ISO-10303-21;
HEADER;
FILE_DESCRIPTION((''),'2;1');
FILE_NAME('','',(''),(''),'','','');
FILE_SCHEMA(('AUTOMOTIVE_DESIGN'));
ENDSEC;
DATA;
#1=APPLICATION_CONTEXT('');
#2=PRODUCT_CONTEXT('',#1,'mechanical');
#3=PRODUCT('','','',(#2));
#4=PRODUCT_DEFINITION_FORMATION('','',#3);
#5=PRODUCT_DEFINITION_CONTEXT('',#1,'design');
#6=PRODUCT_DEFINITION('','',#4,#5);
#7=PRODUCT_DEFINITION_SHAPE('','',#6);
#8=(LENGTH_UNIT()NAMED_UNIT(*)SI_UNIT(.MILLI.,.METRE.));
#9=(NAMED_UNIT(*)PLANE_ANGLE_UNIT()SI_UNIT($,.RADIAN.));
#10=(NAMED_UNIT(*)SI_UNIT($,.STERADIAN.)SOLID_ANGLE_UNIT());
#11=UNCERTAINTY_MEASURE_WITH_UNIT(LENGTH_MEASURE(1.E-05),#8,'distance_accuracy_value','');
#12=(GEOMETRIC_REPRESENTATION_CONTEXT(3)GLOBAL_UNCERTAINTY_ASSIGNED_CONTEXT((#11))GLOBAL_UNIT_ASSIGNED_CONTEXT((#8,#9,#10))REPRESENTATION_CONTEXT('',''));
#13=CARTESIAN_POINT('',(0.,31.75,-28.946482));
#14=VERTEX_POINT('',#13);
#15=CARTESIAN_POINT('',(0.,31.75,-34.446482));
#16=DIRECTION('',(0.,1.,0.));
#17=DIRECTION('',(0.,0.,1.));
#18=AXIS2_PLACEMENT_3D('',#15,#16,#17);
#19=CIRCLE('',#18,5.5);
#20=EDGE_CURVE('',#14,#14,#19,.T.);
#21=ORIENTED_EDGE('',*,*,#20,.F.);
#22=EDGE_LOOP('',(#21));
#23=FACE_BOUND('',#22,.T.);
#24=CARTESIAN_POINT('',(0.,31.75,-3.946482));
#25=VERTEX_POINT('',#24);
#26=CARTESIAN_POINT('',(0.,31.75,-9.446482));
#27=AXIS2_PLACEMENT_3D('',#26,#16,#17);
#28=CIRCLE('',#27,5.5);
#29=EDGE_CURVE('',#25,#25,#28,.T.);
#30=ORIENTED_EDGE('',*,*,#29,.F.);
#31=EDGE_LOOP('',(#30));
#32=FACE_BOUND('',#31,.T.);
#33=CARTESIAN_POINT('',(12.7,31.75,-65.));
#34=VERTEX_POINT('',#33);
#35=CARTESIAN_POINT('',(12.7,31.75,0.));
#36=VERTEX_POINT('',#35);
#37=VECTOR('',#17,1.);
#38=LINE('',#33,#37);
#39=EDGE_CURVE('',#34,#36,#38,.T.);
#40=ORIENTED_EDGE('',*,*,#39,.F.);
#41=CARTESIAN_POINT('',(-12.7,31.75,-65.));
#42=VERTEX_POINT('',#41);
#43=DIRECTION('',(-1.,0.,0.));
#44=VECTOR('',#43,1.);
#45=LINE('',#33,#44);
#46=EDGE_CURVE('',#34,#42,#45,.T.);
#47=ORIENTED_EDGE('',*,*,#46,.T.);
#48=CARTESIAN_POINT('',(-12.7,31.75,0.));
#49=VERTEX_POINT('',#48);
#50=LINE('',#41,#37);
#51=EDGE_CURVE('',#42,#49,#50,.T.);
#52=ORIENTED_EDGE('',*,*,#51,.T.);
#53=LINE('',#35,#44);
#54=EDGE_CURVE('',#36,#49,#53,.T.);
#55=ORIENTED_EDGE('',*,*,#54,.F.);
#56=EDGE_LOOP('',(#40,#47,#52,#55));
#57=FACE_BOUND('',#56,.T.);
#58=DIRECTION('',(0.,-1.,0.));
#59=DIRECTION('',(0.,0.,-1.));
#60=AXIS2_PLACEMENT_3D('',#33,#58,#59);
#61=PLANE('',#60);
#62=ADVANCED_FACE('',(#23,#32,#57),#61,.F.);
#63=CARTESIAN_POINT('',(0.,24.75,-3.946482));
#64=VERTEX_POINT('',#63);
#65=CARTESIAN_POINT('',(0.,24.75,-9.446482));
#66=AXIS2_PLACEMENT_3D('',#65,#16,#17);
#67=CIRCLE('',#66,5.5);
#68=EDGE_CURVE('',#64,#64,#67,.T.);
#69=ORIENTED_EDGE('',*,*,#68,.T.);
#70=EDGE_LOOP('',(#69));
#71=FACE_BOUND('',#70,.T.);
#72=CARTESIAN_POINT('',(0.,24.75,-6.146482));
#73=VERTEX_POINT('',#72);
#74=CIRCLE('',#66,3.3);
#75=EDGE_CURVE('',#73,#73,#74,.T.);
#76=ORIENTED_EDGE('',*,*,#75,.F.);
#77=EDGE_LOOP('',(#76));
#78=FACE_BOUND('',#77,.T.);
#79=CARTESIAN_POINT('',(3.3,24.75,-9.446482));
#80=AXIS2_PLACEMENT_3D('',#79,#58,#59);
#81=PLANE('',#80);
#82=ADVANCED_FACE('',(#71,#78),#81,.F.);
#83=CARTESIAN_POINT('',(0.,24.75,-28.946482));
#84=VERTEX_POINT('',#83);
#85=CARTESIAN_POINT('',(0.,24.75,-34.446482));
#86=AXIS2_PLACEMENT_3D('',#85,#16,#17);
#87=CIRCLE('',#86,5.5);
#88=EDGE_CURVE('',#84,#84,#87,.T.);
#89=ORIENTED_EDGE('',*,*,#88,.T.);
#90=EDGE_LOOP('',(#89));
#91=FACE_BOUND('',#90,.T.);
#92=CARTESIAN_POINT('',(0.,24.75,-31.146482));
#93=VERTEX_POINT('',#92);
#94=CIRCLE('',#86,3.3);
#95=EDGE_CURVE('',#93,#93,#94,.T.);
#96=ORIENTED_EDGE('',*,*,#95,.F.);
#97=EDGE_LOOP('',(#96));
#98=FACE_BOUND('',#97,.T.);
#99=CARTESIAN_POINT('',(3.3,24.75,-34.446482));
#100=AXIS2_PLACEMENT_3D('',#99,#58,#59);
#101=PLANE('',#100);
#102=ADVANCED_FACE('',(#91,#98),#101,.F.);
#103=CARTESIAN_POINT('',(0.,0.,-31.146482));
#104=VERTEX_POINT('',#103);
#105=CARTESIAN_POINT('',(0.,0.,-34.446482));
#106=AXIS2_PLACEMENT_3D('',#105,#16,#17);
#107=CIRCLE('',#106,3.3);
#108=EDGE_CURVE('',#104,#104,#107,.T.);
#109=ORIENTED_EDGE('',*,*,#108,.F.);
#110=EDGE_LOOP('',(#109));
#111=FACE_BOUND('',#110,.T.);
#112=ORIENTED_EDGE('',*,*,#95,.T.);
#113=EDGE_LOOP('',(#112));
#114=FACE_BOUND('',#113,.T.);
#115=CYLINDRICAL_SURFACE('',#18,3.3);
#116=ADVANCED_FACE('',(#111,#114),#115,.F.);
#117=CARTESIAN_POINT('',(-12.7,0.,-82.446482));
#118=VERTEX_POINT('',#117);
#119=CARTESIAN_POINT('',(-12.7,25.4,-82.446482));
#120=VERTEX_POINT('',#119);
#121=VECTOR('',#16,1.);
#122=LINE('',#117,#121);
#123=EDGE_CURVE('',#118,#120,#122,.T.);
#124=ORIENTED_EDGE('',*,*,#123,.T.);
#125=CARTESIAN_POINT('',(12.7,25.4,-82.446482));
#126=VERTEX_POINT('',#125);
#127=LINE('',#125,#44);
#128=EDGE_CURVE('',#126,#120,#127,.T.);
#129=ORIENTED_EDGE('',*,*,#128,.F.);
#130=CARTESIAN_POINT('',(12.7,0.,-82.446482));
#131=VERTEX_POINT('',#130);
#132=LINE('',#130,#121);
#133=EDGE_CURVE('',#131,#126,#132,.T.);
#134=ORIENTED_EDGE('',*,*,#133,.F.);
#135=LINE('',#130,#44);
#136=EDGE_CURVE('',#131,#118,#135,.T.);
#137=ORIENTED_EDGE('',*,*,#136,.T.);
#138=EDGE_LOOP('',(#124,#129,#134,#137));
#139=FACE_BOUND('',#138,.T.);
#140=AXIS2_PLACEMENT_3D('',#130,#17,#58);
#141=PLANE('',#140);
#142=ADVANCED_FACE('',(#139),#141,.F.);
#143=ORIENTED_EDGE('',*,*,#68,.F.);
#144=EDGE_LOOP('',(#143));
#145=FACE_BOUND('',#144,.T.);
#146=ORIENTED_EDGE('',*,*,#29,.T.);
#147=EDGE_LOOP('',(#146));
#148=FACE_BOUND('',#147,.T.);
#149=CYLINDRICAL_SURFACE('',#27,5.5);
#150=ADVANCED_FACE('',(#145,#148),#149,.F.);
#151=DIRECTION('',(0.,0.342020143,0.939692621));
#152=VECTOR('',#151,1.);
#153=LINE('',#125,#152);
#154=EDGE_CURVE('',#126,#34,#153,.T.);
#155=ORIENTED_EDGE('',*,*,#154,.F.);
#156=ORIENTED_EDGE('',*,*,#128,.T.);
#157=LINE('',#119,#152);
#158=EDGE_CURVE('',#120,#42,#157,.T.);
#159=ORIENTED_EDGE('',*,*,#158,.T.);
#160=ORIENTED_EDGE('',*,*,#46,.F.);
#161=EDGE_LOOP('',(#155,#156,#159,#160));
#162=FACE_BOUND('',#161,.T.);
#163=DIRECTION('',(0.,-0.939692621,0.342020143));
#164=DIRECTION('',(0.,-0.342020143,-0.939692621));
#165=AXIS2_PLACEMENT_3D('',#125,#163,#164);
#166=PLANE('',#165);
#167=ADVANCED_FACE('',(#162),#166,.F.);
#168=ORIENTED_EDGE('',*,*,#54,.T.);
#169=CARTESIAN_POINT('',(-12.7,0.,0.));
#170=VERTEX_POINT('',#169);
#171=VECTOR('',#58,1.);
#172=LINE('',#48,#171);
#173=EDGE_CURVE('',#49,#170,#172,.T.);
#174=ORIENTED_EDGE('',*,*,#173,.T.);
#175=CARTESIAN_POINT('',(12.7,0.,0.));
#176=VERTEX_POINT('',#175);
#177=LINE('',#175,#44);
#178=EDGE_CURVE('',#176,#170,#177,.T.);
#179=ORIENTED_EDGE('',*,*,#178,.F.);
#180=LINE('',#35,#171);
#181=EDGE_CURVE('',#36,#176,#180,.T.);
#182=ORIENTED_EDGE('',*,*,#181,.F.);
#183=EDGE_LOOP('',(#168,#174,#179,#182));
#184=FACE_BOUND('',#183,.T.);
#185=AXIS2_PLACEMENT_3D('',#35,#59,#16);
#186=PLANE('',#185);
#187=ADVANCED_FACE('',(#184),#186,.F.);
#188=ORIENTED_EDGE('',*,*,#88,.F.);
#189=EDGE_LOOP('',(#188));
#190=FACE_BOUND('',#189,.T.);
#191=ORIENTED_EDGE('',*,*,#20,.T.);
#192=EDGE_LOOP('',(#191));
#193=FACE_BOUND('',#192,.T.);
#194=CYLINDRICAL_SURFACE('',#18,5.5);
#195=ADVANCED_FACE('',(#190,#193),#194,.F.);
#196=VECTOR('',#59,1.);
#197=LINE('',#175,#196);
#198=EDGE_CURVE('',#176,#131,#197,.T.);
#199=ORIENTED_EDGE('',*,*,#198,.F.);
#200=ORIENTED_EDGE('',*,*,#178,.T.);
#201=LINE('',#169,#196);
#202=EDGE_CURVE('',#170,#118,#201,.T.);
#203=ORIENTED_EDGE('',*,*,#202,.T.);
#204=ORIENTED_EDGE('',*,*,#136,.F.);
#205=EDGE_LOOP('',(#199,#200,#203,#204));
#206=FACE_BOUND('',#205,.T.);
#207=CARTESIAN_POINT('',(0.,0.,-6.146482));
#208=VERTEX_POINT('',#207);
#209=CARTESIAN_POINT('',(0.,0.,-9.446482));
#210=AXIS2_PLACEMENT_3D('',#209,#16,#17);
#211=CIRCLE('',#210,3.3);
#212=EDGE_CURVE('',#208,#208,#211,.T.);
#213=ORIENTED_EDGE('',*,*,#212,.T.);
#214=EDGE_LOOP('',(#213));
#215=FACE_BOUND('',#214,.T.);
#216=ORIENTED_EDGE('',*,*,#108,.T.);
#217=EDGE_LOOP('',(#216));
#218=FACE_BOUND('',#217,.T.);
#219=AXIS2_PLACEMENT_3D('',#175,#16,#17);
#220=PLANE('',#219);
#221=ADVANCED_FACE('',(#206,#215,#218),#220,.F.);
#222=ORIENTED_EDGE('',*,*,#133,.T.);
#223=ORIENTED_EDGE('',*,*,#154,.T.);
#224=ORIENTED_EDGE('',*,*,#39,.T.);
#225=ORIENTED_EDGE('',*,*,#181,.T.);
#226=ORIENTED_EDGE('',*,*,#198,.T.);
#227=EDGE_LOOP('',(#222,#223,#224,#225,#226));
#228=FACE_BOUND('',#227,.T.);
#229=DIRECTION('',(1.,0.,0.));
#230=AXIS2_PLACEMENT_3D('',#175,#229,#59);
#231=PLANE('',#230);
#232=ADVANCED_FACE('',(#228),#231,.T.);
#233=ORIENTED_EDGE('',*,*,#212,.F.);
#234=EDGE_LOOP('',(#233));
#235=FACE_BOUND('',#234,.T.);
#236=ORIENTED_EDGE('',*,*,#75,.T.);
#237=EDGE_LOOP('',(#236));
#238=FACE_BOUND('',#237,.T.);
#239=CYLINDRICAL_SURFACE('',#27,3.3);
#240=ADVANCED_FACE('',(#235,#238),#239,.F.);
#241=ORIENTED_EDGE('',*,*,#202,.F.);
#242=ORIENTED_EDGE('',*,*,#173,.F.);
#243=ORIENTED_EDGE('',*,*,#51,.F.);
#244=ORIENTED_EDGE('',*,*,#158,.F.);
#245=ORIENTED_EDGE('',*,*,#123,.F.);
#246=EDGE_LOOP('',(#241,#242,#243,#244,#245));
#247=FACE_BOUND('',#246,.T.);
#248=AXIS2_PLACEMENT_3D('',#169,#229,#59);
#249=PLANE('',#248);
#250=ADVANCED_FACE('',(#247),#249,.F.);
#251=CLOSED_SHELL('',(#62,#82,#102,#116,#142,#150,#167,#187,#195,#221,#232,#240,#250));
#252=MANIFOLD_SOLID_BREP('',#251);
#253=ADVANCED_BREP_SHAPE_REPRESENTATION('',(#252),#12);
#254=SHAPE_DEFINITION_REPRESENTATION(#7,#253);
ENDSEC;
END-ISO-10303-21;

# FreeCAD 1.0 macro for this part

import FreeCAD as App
import Part
import Sketcher

V = App.Vector
Q = App.Units.Quantity


def add_polygon(sketch, points):
    """Adds a closed chain of lines whose ends are joined by coincident constraints."""
    first, n = sketch.GeometryCount, len(points)
    for a, b in zip(points, points[1:] + points[:1]):
        sketch.addGeometry(Part.LineSegment(App.Vector(*a, 0), App.Vector(*b, 0)), False)
    for i in range(n):
        sketch.addConstraint(Sketcher.Constraint("Coincident", first + i, 2, first + (i + 1) % n, 1))

doc = App.newDocument("Part")
body = doc.addObject("PartDesign::Body", "Body")

# Sketch on YZ plane
sketch1 = body.newObject("Sketcher::SketchObject", "Sketch")
sketch1.AttachmentSupport = (doc.getObject("YZ_Plane"), [""])
sketch1.MapMode = "FlatFace"
add_polygon(sketch1, [(0, 0), (0, -82), (25, -82), (32, -65), (32, 0)])  # lines 0-4
sketch1.addConstraint([
    Sketcher.Constraint("Vertical", 0),
    Sketcher.Constraint("Horizontal", 1),
    Sketcher.Constraint("Vertical", 3),
    Sketcher.Constraint("Horizontal", 4),
    Sketcher.Constraint("Coincident", 4, 2, -1, 1),
    Sketcher.Constraint("DistanceX", 1, 1, 1, 2, Q("1 in")),
    Sketcher.Constraint("Angle", 2, Q("70 deg")),
    Sketcher.Constraint("DistanceX", 4, 2, 4, 1, Q("1.25 in")),
    Sketcher.Constraint("DistanceY", 3, 1, 3, 2, Q("65 mm")),
])
pad1 = body.newObject("PartDesign::Pad", "Pad")
pad1.Profile = sketch1
pad1.Length = Q("1 in")
pad1.Midplane = True

# Sketch on XZ plane
sketch2 = body.newObject("Sketcher::SketchObject", "Sketch001")
sketch2.AttachmentSupport = (doc.getObject("XZ_Plane"), [""])
sketch2.MapMode = "FlatFace"
sketch2.AttachmentOffset = App.Placement(V(0, 0, -1.25 * 25.4), App.Rotation())
sketch2.addGeometry([
    Part.Circle(V(0, -9.4, 0), V(0, 0, 1), 3.3),
    Part.Circle(V(0, -34.4, 0), V(0, 0, 1), 3.3),
], False)
sketch2.addConstraint([
    Sketcher.Constraint("Equal", 0, 1),
    Sketcher.Constraint("PointOnObject", 0, 3, -2),
    Sketcher.Constraint("PointOnObject", 1, 3, -2),
    Sketcher.Constraint("Diameter", 0, Q("6.6 mm")),
    Sketcher.Constraint("DistanceY", 1, 3, 0, 3, Q("25 mm")),
    Sketcher.Constraint("DistanceY", 0, 3, -1, 1, Q("9.446482 mm")),
])
doc.recompute()
hole = body.newObject("PartDesign::Hole", "Hole")
hole.Profile = sketch2
hole.ThreadType = "None"
hole.Diameter = 6.6
hole.DepthType = "ThroughAll"
hole.HoleCutType = "Counterbore"
hole.HoleCutDiameter = 11
hole.HoleCutDepth = 7
hole.Reversed = True

doc.recompute()
